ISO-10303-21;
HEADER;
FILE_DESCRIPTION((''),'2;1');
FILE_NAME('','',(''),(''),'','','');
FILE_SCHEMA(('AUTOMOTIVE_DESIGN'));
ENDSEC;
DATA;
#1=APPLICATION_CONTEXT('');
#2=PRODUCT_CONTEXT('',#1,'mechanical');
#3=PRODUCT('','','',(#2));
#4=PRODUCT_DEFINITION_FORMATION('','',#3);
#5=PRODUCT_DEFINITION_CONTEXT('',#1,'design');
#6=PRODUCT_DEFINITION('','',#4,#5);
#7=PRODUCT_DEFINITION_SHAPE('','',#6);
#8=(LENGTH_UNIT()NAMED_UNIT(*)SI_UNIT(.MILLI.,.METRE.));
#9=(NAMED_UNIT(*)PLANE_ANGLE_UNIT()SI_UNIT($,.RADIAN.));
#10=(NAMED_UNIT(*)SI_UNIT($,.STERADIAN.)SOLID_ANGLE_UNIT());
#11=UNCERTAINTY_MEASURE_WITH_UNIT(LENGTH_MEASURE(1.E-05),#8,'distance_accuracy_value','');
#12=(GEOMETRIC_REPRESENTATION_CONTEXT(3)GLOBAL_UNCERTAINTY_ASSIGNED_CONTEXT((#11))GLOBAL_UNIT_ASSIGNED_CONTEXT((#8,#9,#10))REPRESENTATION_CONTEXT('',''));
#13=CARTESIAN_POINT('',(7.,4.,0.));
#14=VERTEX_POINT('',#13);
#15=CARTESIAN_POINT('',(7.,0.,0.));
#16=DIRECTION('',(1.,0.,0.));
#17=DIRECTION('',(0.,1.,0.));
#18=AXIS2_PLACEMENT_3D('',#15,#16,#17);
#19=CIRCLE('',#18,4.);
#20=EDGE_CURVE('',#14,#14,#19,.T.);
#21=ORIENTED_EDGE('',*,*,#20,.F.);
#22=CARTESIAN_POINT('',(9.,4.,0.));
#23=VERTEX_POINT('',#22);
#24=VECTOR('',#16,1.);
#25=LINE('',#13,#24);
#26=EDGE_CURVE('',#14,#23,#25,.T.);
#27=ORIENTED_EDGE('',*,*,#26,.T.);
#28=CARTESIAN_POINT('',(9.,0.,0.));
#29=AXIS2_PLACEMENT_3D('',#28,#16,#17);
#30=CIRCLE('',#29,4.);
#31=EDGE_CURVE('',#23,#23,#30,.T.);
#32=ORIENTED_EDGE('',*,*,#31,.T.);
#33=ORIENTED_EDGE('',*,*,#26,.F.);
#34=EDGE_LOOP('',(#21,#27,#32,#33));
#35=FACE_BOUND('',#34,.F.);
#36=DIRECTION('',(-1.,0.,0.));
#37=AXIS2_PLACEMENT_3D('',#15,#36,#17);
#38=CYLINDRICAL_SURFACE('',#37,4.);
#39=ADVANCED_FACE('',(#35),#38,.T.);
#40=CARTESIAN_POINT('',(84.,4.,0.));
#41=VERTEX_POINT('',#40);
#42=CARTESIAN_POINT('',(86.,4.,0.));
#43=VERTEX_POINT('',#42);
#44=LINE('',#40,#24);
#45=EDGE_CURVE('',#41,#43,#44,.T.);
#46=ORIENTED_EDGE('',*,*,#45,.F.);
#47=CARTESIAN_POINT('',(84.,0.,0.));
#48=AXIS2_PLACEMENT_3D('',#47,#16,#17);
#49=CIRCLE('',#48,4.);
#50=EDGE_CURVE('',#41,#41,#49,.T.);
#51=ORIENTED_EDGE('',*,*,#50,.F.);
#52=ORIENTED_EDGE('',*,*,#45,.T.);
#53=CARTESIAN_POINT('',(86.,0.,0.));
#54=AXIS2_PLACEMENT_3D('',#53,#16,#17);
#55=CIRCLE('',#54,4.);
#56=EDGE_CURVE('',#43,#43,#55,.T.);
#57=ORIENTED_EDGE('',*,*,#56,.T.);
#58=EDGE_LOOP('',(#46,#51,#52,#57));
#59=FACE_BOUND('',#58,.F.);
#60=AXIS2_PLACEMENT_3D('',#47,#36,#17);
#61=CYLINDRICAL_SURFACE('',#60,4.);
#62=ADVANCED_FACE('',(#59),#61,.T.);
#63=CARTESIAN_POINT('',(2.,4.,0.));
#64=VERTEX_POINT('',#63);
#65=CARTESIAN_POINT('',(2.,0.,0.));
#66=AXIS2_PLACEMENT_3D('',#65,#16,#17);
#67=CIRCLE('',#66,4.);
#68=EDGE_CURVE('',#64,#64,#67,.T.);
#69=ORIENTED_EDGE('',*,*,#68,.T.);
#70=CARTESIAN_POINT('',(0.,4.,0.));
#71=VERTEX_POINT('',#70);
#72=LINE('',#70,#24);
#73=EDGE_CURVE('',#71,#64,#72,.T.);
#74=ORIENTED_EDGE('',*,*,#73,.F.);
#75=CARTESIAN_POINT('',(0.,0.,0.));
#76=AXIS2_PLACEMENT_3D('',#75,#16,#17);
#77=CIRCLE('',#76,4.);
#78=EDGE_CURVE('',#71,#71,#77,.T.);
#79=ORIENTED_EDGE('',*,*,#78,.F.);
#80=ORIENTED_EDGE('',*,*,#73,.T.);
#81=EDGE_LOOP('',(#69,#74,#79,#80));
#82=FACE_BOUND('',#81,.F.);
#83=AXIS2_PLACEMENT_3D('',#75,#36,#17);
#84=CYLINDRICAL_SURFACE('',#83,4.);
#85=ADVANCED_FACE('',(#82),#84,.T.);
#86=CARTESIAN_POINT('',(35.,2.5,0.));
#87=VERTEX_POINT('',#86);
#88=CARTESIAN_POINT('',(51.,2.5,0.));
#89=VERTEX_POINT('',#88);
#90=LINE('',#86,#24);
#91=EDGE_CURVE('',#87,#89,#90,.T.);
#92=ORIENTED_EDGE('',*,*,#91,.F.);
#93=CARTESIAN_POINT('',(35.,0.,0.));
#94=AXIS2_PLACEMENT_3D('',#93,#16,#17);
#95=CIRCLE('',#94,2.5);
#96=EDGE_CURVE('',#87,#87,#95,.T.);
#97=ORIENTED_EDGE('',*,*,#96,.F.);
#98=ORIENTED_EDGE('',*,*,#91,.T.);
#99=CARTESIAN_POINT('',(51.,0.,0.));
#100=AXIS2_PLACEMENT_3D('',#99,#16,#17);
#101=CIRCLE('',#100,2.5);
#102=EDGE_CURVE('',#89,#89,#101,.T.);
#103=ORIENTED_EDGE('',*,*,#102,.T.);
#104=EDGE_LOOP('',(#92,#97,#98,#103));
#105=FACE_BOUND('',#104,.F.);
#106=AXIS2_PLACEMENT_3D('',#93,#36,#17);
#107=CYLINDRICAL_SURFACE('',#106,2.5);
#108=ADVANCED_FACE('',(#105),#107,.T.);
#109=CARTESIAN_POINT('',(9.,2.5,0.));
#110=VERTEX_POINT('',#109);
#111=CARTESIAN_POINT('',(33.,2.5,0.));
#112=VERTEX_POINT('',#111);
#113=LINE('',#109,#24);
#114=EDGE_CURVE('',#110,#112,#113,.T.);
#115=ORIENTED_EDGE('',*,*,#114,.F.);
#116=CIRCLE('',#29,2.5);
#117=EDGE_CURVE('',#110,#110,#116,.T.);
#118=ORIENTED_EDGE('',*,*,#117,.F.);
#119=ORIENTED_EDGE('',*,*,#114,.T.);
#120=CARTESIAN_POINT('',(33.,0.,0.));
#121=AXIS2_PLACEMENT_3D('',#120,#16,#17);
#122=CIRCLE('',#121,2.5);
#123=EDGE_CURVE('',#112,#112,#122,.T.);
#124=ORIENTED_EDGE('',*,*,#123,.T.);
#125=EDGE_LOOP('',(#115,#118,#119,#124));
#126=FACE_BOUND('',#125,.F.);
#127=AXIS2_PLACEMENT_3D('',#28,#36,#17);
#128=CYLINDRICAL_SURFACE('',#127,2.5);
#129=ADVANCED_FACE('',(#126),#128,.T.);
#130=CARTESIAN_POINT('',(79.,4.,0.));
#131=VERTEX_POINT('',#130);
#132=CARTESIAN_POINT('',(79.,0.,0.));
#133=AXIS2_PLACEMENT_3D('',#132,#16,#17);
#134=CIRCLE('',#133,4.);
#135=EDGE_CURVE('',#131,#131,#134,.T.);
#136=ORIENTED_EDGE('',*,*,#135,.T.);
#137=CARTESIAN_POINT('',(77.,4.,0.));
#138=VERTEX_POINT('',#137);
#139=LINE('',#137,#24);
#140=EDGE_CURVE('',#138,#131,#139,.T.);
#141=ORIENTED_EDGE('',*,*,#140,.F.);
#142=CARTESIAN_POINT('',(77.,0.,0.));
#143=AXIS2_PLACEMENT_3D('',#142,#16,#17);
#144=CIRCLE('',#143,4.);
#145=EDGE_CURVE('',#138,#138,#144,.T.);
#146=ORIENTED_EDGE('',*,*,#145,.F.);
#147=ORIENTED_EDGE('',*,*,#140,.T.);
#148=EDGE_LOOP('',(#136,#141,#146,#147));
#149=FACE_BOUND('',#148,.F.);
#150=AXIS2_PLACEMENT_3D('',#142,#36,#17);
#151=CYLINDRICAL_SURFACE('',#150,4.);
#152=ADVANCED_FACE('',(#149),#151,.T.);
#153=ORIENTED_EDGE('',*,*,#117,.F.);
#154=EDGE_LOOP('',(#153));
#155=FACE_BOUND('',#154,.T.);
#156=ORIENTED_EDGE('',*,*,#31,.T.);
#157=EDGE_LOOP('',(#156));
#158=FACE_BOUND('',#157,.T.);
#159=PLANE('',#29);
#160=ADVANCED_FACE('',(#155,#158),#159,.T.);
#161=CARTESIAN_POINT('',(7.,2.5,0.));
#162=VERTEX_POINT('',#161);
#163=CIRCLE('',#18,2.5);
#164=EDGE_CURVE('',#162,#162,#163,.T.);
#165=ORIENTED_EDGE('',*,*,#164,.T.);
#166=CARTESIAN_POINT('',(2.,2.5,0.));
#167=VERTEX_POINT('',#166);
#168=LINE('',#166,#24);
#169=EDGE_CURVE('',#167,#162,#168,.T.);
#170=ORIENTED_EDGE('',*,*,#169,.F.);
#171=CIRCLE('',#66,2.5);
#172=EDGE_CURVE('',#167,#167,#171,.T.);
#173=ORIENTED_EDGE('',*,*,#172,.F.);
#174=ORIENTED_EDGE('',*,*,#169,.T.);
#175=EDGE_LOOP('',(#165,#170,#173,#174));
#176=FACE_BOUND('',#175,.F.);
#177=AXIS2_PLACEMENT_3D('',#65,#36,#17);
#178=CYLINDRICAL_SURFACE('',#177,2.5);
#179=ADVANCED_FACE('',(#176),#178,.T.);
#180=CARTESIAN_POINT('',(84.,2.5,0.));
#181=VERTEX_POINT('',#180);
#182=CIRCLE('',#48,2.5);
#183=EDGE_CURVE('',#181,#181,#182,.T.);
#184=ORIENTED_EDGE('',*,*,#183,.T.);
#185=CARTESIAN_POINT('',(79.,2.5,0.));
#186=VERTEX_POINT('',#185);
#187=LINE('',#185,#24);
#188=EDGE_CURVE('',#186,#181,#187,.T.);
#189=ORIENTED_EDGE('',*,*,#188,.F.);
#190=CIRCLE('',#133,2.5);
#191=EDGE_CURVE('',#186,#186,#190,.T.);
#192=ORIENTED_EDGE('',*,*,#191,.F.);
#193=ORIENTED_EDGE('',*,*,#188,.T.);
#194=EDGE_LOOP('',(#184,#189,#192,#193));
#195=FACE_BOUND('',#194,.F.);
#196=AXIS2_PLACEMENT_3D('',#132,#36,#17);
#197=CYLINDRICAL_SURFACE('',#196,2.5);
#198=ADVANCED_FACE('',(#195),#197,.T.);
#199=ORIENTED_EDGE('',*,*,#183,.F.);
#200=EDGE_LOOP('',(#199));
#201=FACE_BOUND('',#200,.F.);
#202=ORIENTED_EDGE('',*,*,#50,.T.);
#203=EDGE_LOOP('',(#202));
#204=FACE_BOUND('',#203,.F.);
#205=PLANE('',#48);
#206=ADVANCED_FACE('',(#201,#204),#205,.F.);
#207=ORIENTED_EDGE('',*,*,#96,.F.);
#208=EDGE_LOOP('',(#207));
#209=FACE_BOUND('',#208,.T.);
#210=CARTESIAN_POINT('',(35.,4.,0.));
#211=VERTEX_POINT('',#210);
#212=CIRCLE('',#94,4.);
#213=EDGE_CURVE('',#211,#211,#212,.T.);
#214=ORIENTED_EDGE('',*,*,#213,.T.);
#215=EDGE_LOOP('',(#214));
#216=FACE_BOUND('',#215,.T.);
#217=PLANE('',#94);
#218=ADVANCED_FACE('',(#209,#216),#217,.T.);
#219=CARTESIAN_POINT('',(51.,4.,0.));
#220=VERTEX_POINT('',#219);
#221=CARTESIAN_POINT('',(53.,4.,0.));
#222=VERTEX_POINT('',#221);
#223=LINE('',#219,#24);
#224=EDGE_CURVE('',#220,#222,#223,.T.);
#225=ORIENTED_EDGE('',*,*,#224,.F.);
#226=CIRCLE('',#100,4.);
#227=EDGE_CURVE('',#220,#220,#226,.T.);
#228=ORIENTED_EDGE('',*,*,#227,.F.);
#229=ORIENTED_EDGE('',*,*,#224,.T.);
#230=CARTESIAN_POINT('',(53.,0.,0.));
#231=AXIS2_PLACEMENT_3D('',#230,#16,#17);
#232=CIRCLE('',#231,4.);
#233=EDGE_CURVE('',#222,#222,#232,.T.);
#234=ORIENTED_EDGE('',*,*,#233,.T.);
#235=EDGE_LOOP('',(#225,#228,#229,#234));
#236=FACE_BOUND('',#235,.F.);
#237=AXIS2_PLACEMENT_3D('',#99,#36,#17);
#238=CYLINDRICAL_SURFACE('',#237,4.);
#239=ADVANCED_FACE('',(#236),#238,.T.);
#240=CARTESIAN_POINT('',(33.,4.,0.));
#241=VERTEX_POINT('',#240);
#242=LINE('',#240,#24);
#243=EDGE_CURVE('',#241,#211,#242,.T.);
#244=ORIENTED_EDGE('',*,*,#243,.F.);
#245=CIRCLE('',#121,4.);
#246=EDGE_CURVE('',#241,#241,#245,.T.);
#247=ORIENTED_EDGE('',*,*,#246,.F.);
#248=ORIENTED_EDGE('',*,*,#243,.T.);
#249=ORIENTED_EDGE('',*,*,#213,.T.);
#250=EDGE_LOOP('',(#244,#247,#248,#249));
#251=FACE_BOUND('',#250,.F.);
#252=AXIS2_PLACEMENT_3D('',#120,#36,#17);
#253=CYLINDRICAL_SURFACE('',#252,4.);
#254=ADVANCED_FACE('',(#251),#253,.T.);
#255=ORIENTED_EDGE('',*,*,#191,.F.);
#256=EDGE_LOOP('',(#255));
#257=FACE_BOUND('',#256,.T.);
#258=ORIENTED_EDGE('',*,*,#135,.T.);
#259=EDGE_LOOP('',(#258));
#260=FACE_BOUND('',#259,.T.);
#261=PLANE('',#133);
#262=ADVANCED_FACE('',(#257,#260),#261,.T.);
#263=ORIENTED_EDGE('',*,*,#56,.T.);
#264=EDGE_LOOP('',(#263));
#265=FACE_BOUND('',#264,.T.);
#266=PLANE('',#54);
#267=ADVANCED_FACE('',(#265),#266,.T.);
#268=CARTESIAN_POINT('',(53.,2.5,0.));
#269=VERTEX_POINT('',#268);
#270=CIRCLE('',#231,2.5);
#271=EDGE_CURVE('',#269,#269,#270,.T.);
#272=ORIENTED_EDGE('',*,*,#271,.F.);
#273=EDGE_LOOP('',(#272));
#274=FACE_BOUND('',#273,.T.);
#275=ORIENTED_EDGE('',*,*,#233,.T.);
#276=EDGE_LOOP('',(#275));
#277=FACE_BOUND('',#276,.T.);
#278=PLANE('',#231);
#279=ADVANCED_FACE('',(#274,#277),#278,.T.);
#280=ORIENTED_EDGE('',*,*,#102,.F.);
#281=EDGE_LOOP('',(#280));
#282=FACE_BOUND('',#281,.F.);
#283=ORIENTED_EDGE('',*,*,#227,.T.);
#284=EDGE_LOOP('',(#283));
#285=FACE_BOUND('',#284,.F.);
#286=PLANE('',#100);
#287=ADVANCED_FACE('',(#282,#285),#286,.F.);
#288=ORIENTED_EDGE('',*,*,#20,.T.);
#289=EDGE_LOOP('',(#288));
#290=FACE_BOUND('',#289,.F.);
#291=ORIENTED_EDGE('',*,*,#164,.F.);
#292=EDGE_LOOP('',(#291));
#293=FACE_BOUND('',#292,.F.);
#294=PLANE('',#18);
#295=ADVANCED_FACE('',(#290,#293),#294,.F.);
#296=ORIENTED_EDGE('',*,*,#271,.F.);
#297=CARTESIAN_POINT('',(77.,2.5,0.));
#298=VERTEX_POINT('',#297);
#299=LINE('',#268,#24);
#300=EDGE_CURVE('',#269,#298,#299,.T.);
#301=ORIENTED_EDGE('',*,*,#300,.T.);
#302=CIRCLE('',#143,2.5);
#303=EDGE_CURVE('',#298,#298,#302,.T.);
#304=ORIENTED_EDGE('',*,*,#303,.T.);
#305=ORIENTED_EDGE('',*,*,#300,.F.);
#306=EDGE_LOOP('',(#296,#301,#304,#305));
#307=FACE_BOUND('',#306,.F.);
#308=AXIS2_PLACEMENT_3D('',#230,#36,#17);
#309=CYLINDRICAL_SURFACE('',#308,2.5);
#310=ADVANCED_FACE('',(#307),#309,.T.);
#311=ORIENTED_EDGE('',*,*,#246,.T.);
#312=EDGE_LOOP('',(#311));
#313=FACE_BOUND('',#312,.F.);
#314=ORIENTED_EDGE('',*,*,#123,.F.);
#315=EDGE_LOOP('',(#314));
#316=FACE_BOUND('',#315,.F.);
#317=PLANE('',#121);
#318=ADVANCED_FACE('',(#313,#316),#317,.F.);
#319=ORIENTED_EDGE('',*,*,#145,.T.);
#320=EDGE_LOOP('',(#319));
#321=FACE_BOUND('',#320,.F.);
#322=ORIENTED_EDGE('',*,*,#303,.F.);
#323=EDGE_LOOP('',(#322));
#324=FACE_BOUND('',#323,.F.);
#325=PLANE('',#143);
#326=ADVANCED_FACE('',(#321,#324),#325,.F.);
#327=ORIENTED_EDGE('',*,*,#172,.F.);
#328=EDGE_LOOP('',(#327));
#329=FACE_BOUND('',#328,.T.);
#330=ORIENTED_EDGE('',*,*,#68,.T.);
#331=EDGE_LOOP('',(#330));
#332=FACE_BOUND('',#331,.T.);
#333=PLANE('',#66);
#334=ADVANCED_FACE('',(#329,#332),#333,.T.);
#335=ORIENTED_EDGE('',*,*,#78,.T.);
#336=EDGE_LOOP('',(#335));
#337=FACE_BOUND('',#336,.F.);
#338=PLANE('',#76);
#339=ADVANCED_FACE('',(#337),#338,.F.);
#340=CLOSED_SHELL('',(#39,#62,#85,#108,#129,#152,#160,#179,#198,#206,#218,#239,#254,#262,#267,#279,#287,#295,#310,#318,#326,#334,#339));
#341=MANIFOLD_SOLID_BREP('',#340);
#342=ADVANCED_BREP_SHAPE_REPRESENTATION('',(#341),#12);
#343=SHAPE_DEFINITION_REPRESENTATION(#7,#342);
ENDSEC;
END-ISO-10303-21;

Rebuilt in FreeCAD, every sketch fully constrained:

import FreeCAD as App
import Part
import Sketcher

doc = App.newDocument("Part")
params = doc.addObject("Spreadsheet::Sheet", "Params")
for row, (alias, value) in enumerate([
    ("sketch1_diameter", "8 mm"),
    ("pad1_length", "2 mm"),
    ("sketch2_diameter", "5 mm"),
    ("pad2_length", "5 mm"),
    ("sketch3_diameter", "8 mm"),
    ("pad3_length", "2 mm"),
    ("sketch4_diameter", "5 mm"),
    ("pad4_length", "24 mm"),
    ("sketch5_diameter", "8 mm"),
    ("pad5_length", "2 mm"),
    ("sketch6_diameter", "5 mm"),
    ("pad6_length", "16 mm"),
    ("sketch7_diameter", "8 mm"),
    ("pad7_length", "2 mm"),
    ("sketch8_diameter", "5 mm"),
    ("pad8_length", "24 mm"),
    ("sketch9_diameter", "8 mm"),
    ("pad9_length", "2 mm"),
    ("sketch10_diameter", "5 mm"),
    ("pad10_length", "5 mm"),
    ("sketch11_diameter", "8 mm"),
    ("pad11_length", "2 mm"),
], start=1):
    params.set(f"A{row}", alias)
    params.set(f"B{row}", "=" + value)
    params.setAlias(f"B{row}", alias)

body = doc.addObject("PartDesign::Body", "Body")

# Sketch on YZ plane
sketch1 = doc.addObject("Sketcher::SketchObject", "Sketch")
body.addObject(sketch1)
sketch1.AttachmentSupport = (doc.YZ_Plane, [""])
sketch1.MapMode = "FlatFace"
sketch1.addGeometry(Part.Circle(App.Vector(0, 0, 0), App.Vector(0, 0, 1), 4), False)
sketch1.addConstraint(Sketcher.Constraint("Coincident", 0, 3, -1, 1))
sketch1.addConstraint(Sketcher.Constraint("Diameter", 0, 8.0))
sketch1.setExpression("Constraints[1]", "Params.sketch1_diameter")
pad1 = doc.addObject("PartDesign::Pad", "Pad")
body.addObject(pad1)
pad1.Profile = sketch1
pad1.setExpression("Length", "Params.pad1_length")

# Sketch on YZ plane
sketch2 = doc.addObject("Sketcher::SketchObject", "Sketch001")
body.addObject(sketch2)
sketch2.AttachmentSupport = (doc.YZ_Plane, [""])
sketch2.MapMode = "FlatFace"
sketch2.AttachmentOffset = App.Placement(App.Vector(0, 0, 2), App.Rotation())
sketch2.addGeometry(Part.Circle(App.Vector(0, 0, 0), App.Vector(0, 0, 1), 2.5), False)
sketch2.addConstraint(Sketcher.Constraint("Coincident", 0, 3, -1, 1))
sketch2.addConstraint(Sketcher.Constraint("Diameter", 0, 5.0))
sketch2.setExpression("Constraints[1]", "Params.sketch2_diameter")
pad2 = doc.addObject("PartDesign::Pad", "Pad001")
body.addObject(pad2)
pad2.Profile = sketch2
pad2.setExpression("Length", "Params.pad2_length")

# Sketch on YZ plane
sketch3 = doc.addObject("Sketcher::SketchObject", "Sketch002")
body.addObject(sketch3)
sketch3.AttachmentSupport = (doc.YZ_Plane, [""])
sketch3.MapMode = "FlatFace"
sketch3.AttachmentOffset = App.Placement(App.Vector(0, 0, 7), App.Rotation())
sketch3.addGeometry(Part.Circle(App.Vector(0, 0, 0), App.Vector(0, 0, 1), 4), False)
sketch3.addConstraint(Sketcher.Constraint("Coincident", 0, 3, -1, 1))
sketch3.addConstraint(Sketcher.Constraint("Diameter", 0, 8.0))
sketch3.setExpression("Constraints[1]", "Params.sketch3_diameter")
pad3 = doc.addObject("PartDesign::Pad", "Pad002")
body.addObject(pad3)
pad3.Profile = sketch3
pad3.setExpression("Length", "Params.pad3_length")

# Sketch on YZ plane
sketch4 = doc.addObject("Sketcher::SketchObject", "Sketch003")
body.addObject(sketch4)
sketch4.AttachmentSupport = (doc.YZ_Plane, [""])
sketch4.MapMode = "FlatFace"
sketch4.AttachmentOffset = App.Placement(App.Vector(0, 0, 9), App.Rotation())
sketch4.addGeometry(Part.Circle(App.Vector(0, 0, 0), App.Vector(0, 0, 1), 2.5), False)
sketch4.addConstraint(Sketcher.Constraint("Coincident", 0, 3, -1, 1))
sketch4.addConstraint(Sketcher.Constraint("Diameter", 0, 5.0))
sketch4.setExpression("Constraints[1]", "Params.sketch4_diameter")
pad4 = doc.addObject("PartDesign::Pad", "Pad003")
body.addObject(pad4)
pad4.Profile = sketch4
pad4.setExpression("Length", "Params.pad4_length")

# Sketch on YZ plane
sketch5 = doc.addObject("Sketcher::SketchObject", "Sketch004")
body.addObject(sketch5)
sketch5.AttachmentSupport = (doc.YZ_Plane, [""])
sketch5.MapMode = "FlatFace"
sketch5.AttachmentOffset = App.Placement(App.Vector(0, 0, 33), App.Rotation())
sketch5.addGeometry(Part.Circle(App.Vector(0, 0, 0), App.Vector(0, 0, 1), 4), False)
sketch5.addConstraint(Sketcher.Constraint("Coincident", 0, 3, -1, 1))
sketch5.addConstraint(Sketcher.Constraint("Diameter", 0, 8.0))
sketch5.setExpression("Constraints[1]", "Params.sketch5_diameter")
pad5 = doc.addObject("PartDesign::Pad", "Pad004")
body.addObject(pad5)
pad5.Profile = sketch5
pad5.setExpression("Length", "Params.pad5_length")

# Sketch on YZ plane
sketch6 = doc.addObject("Sketcher::SketchObject", "Sketch005")
body.addObject(sketch6)
sketch6.AttachmentSupport = (doc.YZ_Plane, [""])
sketch6.MapMode = "FlatFace"
sketch6.AttachmentOffset = App.Placement(App.Vector(0, 0, 35), App.Rotation())
sketch6.addGeometry(Part.Circle(App.Vector(0, 0, 0), App.Vector(0, 0, 1), 2.5), False)
sketch6.addConstraint(Sketcher.Constraint("Coincident", 0, 3, -1, 1))
sketch6.addConstraint(Sketcher.Constraint("Diameter", 0, 5.0))
sketch6.setExpression("Constraints[1]", "Params.sketch6_diameter")
pad6 = doc.addObject("PartDesign::Pad", "Pad005")
body.addObject(pad6)
pad6.Profile = sketch6
pad6.setExpression("Length", "Params.pad6_length")

# Sketch on YZ plane
sketch7 = doc.addObject("Sketcher::SketchObject", "Sketch006")
body.addObject(sketch7)
sketch7.AttachmentSupport = (doc.YZ_Plane, [""])
sketch7.MapMode = "FlatFace"
sketch7.AttachmentOffset = App.Placement(App.Vector(0, 0, 51), App.Rotation())
sketch7.addGeometry(Part.Circle(App.Vector(0, 0, 0), App.Vector(0, 0, 1), 4), False)
sketch7.addConstraint(Sketcher.Constraint("Coincident", 0, 3, -1, 1))
sketch7.addConstraint(Sketcher.Constraint("Diameter", 0, 8.0))
sketch7.setExpression("Constraints[1]", "Params.sketch7_diameter")
pad7 = doc.addObject("PartDesign::Pad", "Pad006")
body.addObject(pad7)
pad7.Profile = sketch7
pad7.setExpression("Length", "Params.pad7_length")

# Sketch on YZ plane
sketch8 = doc.addObject("Sketcher::SketchObject", "Sketch007")
body.addObject(sketch8)
sketch8.AttachmentSupport = (doc.YZ_Plane, [""])
sketch8.MapMode = "FlatFace"
sketch8.AttachmentOffset = App.Placement(App.Vector(0, 0, 53), App.Rotation())
sketch8.addGeometry(Part.Circle(App.Vector(0, 0, 0), App.Vector(0, 0, 1), 2.5), False)
sketch8.addConstraint(Sketcher.Constraint("Coincident", 0, 3, -1, 1))
sketch8.addConstraint(Sketcher.Constraint("Diameter", 0, 5.0))
sketch8.setExpression("Constraints[1]", "Params.sketch8_diameter")
pad8 = doc.addObject("PartDesign::Pad", "Pad007")
body.addObject(pad8)
pad8.Profile = sketch8
pad8.setExpression("Length", "Params.pad8_length")

# Sketch on YZ plane
sketch9 = doc.addObject("Sketcher::SketchObject", "Sketch008")
body.addObject(sketch9)
sketch9.AttachmentSupport = (doc.YZ_Plane, [""])
sketch9.MapMode = "FlatFace"
sketch9.AttachmentOffset = App.Placement(App.Vector(0, 0, 77), App.Rotation())
sketch9.addGeometry(Part.Circle(App.Vector(0, 0, 0), App.Vector(0, 0, 1), 4), False)
sketch9.addConstraint(Sketcher.Constraint("Coincident", 0, 3, -1, 1))
sketch9.addConstraint(Sketcher.Constraint("Diameter", 0, 8.0))
sketch9.setExpression("Constraints[1]", "Params.sketch9_diameter")
pad9 = doc.addObject("PartDesign::Pad", "Pad008")
body.addObject(pad9)
pad9.Profile = sketch9
pad9.setExpression("Length", "Params.pad9_length")

# Sketch on YZ plane
sketch10 = doc.addObject("Sketcher::SketchObject", "Sketch009")
body.addObject(sketch10)
sketch10.AttachmentSupport = (doc.YZ_Plane, [""])
sketch10.MapMode = "FlatFace"
sketch10.AttachmentOffset = App.Placement(App.Vector(0, 0, 79), App.Rotation())
sketch10.addGeometry(Part.Circle(App.Vector(0, 0, 0), App.Vector(0, 0, 1), 2.5), False)
sketch10.addConstraint(Sketcher.Constraint("Coincident", 0, 3, -1, 1))
sketch10.addConstraint(Sketcher.Constraint("Diameter", 0, 5.0))
sketch10.setExpression("Constraints[1]", "Params.sketch10_diameter")
pad10 = doc.addObject("PartDesign::Pad", "Pad009")
body.addObject(pad10)
pad10.Profile = sketch10
pad10.setExpression("Length", "Params.pad10_length")

# Sketch on YZ plane
sketch11 = doc.addObject("Sketcher::SketchObject", "Sketch010")
body.addObject(sketch11)
sketch11.AttachmentSupport = (doc.YZ_Plane, [""])
sketch11.MapMode = "FlatFace"
sketch11.AttachmentOffset = App.Placement(App.Vector(0, 0, 84), App.Rotation())
sketch11.addGeometry(Part.Circle(App.Vector(0, 0, 0), App.Vector(0, 0, 1), 4), False)
sketch11.addConstraint(Sketcher.Constraint("Coincident", 0, 3, -1, 1))
sketch11.addConstraint(Sketcher.Constraint("Diameter", 0, 8.0))
sketch11.setExpression("Constraints[1]", "Params.sketch11_diameter")
pad11 = doc.addObject("PartDesign::Pad", "Pad010")
body.addObject(pad11)
pad11.Profile = sketch11
pad11.setExpression("Length", "Params.pad11_length")

doc.recompute()
